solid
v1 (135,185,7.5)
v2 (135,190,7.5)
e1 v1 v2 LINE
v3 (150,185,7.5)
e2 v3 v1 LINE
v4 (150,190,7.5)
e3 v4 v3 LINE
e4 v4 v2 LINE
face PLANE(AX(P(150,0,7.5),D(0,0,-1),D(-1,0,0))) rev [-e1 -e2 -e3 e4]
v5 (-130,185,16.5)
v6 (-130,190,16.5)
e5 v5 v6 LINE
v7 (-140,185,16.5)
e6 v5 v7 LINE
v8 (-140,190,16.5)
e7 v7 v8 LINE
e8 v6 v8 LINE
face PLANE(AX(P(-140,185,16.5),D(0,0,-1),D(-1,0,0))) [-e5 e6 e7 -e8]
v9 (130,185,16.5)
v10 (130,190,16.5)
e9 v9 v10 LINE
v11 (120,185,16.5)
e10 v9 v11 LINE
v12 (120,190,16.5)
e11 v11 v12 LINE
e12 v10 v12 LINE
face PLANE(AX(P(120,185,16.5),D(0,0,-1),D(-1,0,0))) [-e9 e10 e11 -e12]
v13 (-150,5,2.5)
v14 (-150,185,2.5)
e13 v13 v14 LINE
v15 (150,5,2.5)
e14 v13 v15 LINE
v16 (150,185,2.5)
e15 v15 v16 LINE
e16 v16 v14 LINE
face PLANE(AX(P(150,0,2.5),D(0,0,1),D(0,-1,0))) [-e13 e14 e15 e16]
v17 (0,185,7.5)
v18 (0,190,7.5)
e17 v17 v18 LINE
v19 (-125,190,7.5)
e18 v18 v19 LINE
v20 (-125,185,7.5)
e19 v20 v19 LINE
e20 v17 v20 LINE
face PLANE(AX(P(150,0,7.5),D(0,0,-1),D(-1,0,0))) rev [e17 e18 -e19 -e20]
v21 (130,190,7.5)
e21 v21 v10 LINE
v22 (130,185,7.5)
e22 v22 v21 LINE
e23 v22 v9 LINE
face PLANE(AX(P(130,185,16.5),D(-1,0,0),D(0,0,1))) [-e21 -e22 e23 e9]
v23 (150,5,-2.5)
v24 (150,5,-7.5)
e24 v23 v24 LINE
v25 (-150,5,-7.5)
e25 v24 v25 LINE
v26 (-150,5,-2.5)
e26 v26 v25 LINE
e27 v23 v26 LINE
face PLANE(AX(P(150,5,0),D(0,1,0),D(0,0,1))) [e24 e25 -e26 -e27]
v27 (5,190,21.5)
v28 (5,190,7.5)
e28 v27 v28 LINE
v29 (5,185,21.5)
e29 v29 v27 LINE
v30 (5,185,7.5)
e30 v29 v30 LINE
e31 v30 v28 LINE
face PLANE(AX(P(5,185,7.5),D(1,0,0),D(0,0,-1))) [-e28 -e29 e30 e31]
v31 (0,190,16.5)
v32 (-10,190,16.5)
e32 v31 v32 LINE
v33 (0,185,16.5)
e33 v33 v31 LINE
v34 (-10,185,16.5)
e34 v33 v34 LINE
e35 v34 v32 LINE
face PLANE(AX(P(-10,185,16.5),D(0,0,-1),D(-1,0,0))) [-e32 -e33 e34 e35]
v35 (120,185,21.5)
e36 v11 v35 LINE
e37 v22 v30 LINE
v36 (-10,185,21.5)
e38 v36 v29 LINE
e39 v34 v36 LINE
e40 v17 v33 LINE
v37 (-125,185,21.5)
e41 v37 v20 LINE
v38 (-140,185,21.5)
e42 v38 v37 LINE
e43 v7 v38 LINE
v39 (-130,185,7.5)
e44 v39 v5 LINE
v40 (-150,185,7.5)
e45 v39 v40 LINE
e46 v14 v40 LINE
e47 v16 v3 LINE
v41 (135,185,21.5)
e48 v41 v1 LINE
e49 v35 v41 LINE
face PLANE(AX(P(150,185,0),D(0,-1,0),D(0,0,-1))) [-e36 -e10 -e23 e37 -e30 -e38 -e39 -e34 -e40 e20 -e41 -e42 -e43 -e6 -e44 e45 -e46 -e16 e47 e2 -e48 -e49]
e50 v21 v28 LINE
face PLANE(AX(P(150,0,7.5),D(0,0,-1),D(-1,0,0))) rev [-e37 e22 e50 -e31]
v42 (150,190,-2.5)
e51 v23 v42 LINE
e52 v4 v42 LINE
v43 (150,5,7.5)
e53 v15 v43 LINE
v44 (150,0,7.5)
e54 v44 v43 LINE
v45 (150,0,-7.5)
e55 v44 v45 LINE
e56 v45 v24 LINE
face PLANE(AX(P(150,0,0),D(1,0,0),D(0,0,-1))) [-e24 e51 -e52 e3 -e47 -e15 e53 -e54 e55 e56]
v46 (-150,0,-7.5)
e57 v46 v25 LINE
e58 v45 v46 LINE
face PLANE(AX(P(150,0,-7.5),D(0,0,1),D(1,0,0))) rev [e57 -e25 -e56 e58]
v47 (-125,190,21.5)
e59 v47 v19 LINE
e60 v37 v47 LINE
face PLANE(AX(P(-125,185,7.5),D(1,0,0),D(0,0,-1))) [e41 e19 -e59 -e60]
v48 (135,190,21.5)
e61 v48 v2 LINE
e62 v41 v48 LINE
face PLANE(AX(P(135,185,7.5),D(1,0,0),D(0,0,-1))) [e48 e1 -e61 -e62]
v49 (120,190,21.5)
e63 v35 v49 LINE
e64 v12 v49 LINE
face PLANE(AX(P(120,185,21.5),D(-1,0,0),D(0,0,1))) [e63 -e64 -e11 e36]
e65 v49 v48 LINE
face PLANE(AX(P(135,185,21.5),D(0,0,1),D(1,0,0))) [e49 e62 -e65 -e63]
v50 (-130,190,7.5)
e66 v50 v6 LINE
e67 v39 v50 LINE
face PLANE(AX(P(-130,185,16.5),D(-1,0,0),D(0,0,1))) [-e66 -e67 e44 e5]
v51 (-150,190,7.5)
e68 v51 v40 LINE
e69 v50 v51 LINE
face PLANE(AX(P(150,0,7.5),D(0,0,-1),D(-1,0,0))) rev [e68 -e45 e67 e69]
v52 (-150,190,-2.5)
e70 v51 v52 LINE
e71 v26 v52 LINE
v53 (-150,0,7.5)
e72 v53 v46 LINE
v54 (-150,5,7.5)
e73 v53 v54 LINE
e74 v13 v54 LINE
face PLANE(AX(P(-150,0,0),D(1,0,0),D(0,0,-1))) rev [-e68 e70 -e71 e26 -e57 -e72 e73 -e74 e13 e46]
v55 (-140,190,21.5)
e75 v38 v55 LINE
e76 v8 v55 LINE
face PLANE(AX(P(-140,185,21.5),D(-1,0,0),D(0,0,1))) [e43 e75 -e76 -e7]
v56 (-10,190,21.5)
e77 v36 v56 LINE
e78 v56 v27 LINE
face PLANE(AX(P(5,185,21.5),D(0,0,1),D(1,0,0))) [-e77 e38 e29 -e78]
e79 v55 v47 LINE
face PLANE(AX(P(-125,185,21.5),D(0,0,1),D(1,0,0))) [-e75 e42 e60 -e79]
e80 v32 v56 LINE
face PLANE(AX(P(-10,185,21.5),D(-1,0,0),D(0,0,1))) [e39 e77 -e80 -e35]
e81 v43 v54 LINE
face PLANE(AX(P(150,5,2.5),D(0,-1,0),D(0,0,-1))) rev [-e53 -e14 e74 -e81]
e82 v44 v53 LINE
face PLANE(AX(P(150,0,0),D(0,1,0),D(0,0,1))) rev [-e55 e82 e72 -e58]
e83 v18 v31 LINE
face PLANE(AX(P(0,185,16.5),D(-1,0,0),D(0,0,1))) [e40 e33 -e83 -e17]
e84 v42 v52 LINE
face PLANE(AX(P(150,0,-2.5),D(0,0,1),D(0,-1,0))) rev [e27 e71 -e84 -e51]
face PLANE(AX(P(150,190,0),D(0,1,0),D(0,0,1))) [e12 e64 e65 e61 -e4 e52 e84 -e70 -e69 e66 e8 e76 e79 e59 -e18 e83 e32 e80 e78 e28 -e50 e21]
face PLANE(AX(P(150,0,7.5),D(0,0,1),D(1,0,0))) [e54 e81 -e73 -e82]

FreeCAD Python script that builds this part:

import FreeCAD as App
import Part
import Sketcher


def add_polygon(sketch, points):
    """Adds a closed chain of lines whose ends are joined by coincident constraints."""
    first, n = sketch.GeometryCount, len(points)
    for a, b in zip(points, points[1:] + points[:1]):
        sketch.addGeometry(Part.LineSegment(App.Vector(*a, 0), App.Vector(*b, 0)), False)
    for i in range(n):
        sketch.addConstraint(Sketcher.Constraint("Coincident", first + i, 2, first + (i + 1) % n, 1))

doc = App.newDocument("Part")
body = doc.addObject("PartDesign::Body", "Body")

# Sketch on YZ plane
sketch1 = body.newObject("Sketcher::SketchObject", "Sketch")
sketch1.AttachmentSupport = (doc.getObject("YZ_Plane"), [""])
sketch1.MapMode = "FlatFace"
add_polygon(sketch1, [(185, 2.5), (5, 2.5), (5, 7.5), (0, 7.5), (0, -7.5), (5, -7.5), (5, -2.5), (190, -2.5), (190, 7.5), (185, 7.5)])  # lines 0-9
sketch1.addConstraint([
    Sketcher.Constraint("Horizontal", 0),
    Sketcher.Constraint("Vertical", 1),
    Sketcher.Constraint("Horizontal", 2),
    Sketcher.Constraint("Vertical", 3),
    Sketcher.Constraint("Horizontal", 4),
    Sketcher.Constraint("Vertical", 5),
    Sketcher.Constraint("Horizontal", 6),
    Sketcher.Constraint("Vertical", 7),
    Sketcher.Constraint("Horizontal", 8),
    Sketcher.Constraint("Vertical", 9),
    Sketcher.Constraint("Symmetric", 2, 2, 3, 2, -1, 1),
    Sketcher.Constraint("Symmetric", 0, 2, 5, 2, -1),
    Sketcher.Constraint("Horizontal", 2, 2, 7, 2),
    Sketcher.Constraint("Equal", 4, 8),
    Sketcher.Constraint("Equal", 8, 1),
    Sketcher.Constraint("DistanceX", 0, 2, 0, 1, 180.0),
    Sketcher.Constraint("DistanceX", 2, 2, 2, 1, 5.0),
    Sketcher.Constraint("DistanceY", 3, 2, 3, 1, 15.0),
])
pad1 = body.newObject("PartDesign::Pad", "Pad")
pad1.Profile = sketch1
pad1.Length = 300
pad1.Midplane = True

# Sketch on XZ plane
sketch2 = body.newObject("Sketcher::SketchObject", "Sketch001")
sketch2.AttachmentSupport = (doc.getObject("XZ_Plane"), [""])
sketch2.MapMode = "FlatFace"
sketch2.AttachmentOffset = App.Placement(App.Vector(0, 0, -190), App.Rotation())
add_polygon(sketch2, [(135, 21.5), (135, 7.5), (130, 7.5), (130, 16.5), (120, 16.5), (120, 21.5)])  # lines 0-5
add_polygon(sketch2, [(5, 7.5), (0, 7.5), (0, 16.5), (-10, 16.5), (-10, 21.5), (5, 21.5)])  # lines 6-11
add_polygon(sketch2, [(-125, 7.5), (-130, 7.5), (-130, 16.5), (-140, 16.5), (-140, 21.5), (-125, 21.5)])  # lines 12-17
sketch2.addConstraint([
    Sketcher.Constraint("Vertical", 0),
    Sketcher.Constraint("Horizontal", 1),
    Sketcher.Constraint("Vertical", 2),
    Sketcher.Constraint("Horizontal", 3),
    Sketcher.Constraint("Vertical", 4),
    Sketcher.Constraint("Horizontal", 5),
    Sketcher.Constraint("Horizontal", 6),
    Sketcher.Constraint("Vertical", 7),
    Sketcher.Constraint("Horizontal", 8),
    Sketcher.Constraint("Vertical", 9),
    Sketcher.Constraint("Horizontal", 10),
    Sketcher.Constraint("Vertical", 11),
    Sketcher.Constraint("Horizontal", 12),
    Sketcher.Constraint("Vertical", 13),
    Sketcher.Constraint("Horizontal", 14),
    Sketcher.Constraint("Vertical", 15),
    Sketcher.Constraint("Horizontal", 16),
    Sketcher.Constraint("Vertical", 17),
    Sketcher.Constraint("Symmetric", 1, 2, 12, 2, -2),
    Sketcher.Constraint("PointOnObject", 6, 2, -2),
    Sketcher.Constraint("Horizontal", 1, 2, 6, 2),
    Sketcher.Constraint("Horizontal", 3, 2, 7, 2),
    Sketcher.Constraint("Horizontal", 5, 2, 9, 2),
    Sketcher.Constraint("Horizontal", 8, 2, 13, 2),
    Sketcher.Constraint("Horizontal", 10, 2, 15, 2),
    Sketcher.Constraint("Equal", 1, 6),
    Sketcher.Constraint("Equal", 3, 8),
    Sketcher.Constraint("Equal", 6, 12),
    Sketcher.Constraint("Equal", 8, 14),
    Sketcher.Constraint("Equal", 12, 4),
    Sketcher.Constraint("DistanceX", 1, 2, 1, 1, 5.0),
    Sketcher.Constraint("DistanceX", 3, 2, 3, 1, 10.0),
    Sketcher.Constraint("DistanceY", 0, 2, 0, 1, 14.0),
    Sketcher.Constraint("DistanceX", -1, 1, 0, 2, 135.0),
    Sketcher.Constraint("DistanceY", -1, 1, 0, 2, 7.5),
])
pad2 = body.newObject("PartDesign::Pad", "Pad001")
pad2.Profile = sketch2
pad2.Length = 5

doc.recompute()
